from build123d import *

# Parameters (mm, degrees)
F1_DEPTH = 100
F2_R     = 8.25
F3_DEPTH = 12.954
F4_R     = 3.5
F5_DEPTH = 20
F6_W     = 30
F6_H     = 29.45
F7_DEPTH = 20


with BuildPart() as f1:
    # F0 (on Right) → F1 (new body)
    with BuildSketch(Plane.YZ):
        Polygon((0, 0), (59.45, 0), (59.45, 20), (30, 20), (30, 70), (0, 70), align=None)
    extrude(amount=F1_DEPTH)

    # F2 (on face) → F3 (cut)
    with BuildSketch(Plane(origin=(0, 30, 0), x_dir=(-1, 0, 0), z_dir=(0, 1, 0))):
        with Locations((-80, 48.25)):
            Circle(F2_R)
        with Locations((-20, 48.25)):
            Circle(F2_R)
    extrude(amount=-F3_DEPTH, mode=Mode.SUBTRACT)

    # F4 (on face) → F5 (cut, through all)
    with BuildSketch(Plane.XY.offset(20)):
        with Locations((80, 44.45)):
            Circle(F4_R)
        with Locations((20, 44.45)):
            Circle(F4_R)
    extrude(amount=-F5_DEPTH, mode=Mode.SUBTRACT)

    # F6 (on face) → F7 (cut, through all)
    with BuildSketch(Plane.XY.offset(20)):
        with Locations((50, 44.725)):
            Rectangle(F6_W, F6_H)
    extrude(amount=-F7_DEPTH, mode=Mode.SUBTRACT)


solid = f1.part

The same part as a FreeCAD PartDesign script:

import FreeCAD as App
import Part
import Sketcher

V = App.Vector
Q = App.Units.Quantity


def add_polygon(sketch, points):
    """Adds a closed chain of lines whose ends are joined by coincident constraints."""
    first, n = sketch.GeometryCount, len(points)
    for a, b in zip(points, points[1:] + points[:1]):
        sketch.addGeometry(Part.LineSegment(App.Vector(*a, 0), App.Vector(*b, 0)), False)
    for i in range(n):
        sketch.addConstraint(Sketcher.Constraint("Coincident", first + i, 2, first + (i + 1) % n, 1))

doc = App.newDocument("Part")
params = doc.addObject("Spreadsheet::Sheet", "Params")
for row, (alias, value) in enumerate([
    ("sketch1_width", "30 mm"),
    ("sketch1_height", "20 mm"),
    ("sketch1_height2", "50 mm"),
    ("sketch1_width2", "59.45 mm"),
    ("pad1_length", "100 mm"),
    ("sketch2_diameter", "16.5 mm"),
    ("pocket1_length", "12.954 mm"),
    ("sketch3_diameter", "7 mm"),
    ("sketch4_width", "30 mm"),
    ("sketch4_height", "29.45 mm"),
], start=1):
    params.set(f"A{row}", alias)
    params.set(f"B{row}", "=" + value)
    params.setAlias(f"B{row}", alias)

body = doc.addObject("PartDesign::Body", "Body")

# Sketch on YZ plane
sketch1 = doc.addObject("Sketcher::SketchObject", "Sketch")
body.addObject(sketch1)
sketch1.AttachmentSupport = (doc.YZ_Plane, [""])
sketch1.MapMode = "FlatFace"
add_polygon(sketch1, [(0, 0), (59, 0), (59, 20), (30, 20), (30, 70), (0, 70)])  # lines 0-5
sketch1.addConstraint([
    Sketcher.Constraint("Horizontal", 0),
    Sketcher.Constraint("Vertical", 1),
    Sketcher.Constraint("Horizontal", 2),
    Sketcher.Constraint("Vertical", 3),
    Sketcher.Constraint("Horizontal", 4),
    Sketcher.Constraint("Vertical", 5),
    Sketcher.Constraint("Coincident", 5, 2, -1, 1),
    Sketcher.Constraint("DistanceX", 4, 2, 4, 1, Q("30 mm")),
    Sketcher.Constraint("DistanceY", 1, 1, 1, 2, Q("20 mm")),
    Sketcher.Constraint("DistanceY", 3, 1, 3, 2, Q("50 mm")),
    Sketcher.Constraint("DistanceX", 0, 1, 0, 2, Q("59.45 mm")),
])
sketch1.setExpression("Constraints[13]", "Params.sketch1_width")
sketch1.setExpression("Constraints[14]", "Params.sketch1_height")
sketch1.setExpression("Constraints[15]", "Params.sketch1_height2")
sketch1.setExpression("Constraints[16]", "Params.sketch1_width2")
pad1 = doc.addObject("PartDesign::Pad", "Pad")
body.addObject(pad1)
pad1.Profile = sketch1
pad1.setExpression("Length", "Params.pad1_length")

# Sketch on XZ plane
sketch2 = doc.addObject("Sketcher::SketchObject", "Sketch001")
body.addObject(sketch2)
sketch2.AttachmentSupport = (doc.XZ_Plane, [""])
sketch2.MapMode = "FlatFace"
sketch2.AttachmentOffset = App.Placement(V(0, 0, -30), App.Rotation())
sketch2.addGeometry([
    Part.Circle(V(80, 48, 0), V(0, 0, 1), 8),
    Part.Circle(V(20, 48, 0), V(0, 0, 1), 8),
], False)
sketch2.addConstraint([
    Sketcher.Constraint("Equal", 0, 1),
    Sketcher.Constraint("Horizontal", 0, 3, 1, 3),
    Sketcher.Constraint("Diameter", 0, Q("16.5 mm")),
    Sketcher.Constraint("DistanceX", -1, 1, 0, 3, Q("80 mm")),
    Sketcher.Constraint("DistanceX", -1, 1, 1, 3, Q("20 mm")),
    Sketcher.Constraint("DistanceY", -1, 1, 0, 3, Q("48.25 mm")),
])
sketch2.setExpression("Constraints[2]", "Params.sketch2_diameter")
pocket1 = doc.addObject("PartDesign::Pocket", "Pocket")
body.addObject(pocket1)
pocket1.Profile = sketch2
pocket1.setExpression("Length", "Params.pocket1_length")
pocket1.Reversed = True

# Sketch on XY plane
sketch3 = doc.addObject("Sketcher::SketchObject", "Sketch002")
body.addObject(sketch3)
sketch3.AttachmentSupport = (doc.XY_Plane, [""])
sketch3.MapMode = "FlatFace"
sketch3.AttachmentOffset = App.Placement(V(0, 0, 20), App.Rotation())
sketch3.addGeometry([
    Part.Circle(V(80, 44.5, 0), V(0, 0, 1), 3.5),
    Part.Circle(V(20, 44.5, 0), V(0, 0, 1), 3.5),
], False)
sketch3.addConstraint([
    Sketcher.Constraint("Equal", 0, 1),
    Sketcher.Constraint("Horizontal", 0, 3, 1, 3),
    Sketcher.Constraint("Diameter", 0, Q("7 mm")),
    Sketcher.Constraint("DistanceX", -1, 1, 0, 3, Q("80 mm")),
    Sketcher.Constraint("DistanceX", -1, 1, 1, 3, Q("20 mm")),
    Sketcher.Constraint("DistanceY", -1, 1, 0, 3, Q("44.45 mm")),
])
sketch3.setExpression("Constraints[2]", "Params.sketch3_diameter")
pocket2 = doc.addObject("PartDesign::Pocket", "Pocket001")
body.addObject(pocket2)
pocket2.Profile = sketch3
pocket2.Type = "ThroughAll"

# Sketch on XY plane
sketch4 = doc.addObject("Sketcher::SketchObject", "Sketch003")
body.addObject(sketch4)
sketch4.AttachmentSupport = (doc.XY_Plane, [""])
sketch4.MapMode = "FlatFace"
sketch4.AttachmentOffset = App.Placement(V(0, 0, 20), App.Rotation())
add_polygon(sketch4, [(35, 59), (35, 30), (65, 30), (65, 59)])  # lines 0-3
sketch4.addConstraint([
    Sketcher.Constraint("Vertical", 0),
    Sketcher.Constraint("Horizontal", 1),
    Sketcher.Constraint("Vertical", 2),
    Sketcher.Constraint("Horizontal", 3),
    Sketcher.Constraint("DistanceX", 1, 1, 1, 2, Q("30 mm")),
    Sketcher.Constraint("DistanceX", -1, 1, 0, 2, Q("35 mm")),
    Sketcher.Constraint("DistanceY", -1, 1, 0, 2, Q("30 mm")),
    Sketcher.Constraint("DistanceY", 0, 2, 0, 1, Q("29.45 mm")),
])
sketch4.setExpression("Constraints[8]", "Params.sketch4_width")
sketch4.setExpression("Constraints[11]", "Params.sketch4_height")
pocket3 = doc.addObject("PartDesign::Pocket", "Pocket002")
body.addObject(pocket3)
pocket3.Profile = sketch4
pocket3.Type = "ThroughAll"

doc.recompute()
